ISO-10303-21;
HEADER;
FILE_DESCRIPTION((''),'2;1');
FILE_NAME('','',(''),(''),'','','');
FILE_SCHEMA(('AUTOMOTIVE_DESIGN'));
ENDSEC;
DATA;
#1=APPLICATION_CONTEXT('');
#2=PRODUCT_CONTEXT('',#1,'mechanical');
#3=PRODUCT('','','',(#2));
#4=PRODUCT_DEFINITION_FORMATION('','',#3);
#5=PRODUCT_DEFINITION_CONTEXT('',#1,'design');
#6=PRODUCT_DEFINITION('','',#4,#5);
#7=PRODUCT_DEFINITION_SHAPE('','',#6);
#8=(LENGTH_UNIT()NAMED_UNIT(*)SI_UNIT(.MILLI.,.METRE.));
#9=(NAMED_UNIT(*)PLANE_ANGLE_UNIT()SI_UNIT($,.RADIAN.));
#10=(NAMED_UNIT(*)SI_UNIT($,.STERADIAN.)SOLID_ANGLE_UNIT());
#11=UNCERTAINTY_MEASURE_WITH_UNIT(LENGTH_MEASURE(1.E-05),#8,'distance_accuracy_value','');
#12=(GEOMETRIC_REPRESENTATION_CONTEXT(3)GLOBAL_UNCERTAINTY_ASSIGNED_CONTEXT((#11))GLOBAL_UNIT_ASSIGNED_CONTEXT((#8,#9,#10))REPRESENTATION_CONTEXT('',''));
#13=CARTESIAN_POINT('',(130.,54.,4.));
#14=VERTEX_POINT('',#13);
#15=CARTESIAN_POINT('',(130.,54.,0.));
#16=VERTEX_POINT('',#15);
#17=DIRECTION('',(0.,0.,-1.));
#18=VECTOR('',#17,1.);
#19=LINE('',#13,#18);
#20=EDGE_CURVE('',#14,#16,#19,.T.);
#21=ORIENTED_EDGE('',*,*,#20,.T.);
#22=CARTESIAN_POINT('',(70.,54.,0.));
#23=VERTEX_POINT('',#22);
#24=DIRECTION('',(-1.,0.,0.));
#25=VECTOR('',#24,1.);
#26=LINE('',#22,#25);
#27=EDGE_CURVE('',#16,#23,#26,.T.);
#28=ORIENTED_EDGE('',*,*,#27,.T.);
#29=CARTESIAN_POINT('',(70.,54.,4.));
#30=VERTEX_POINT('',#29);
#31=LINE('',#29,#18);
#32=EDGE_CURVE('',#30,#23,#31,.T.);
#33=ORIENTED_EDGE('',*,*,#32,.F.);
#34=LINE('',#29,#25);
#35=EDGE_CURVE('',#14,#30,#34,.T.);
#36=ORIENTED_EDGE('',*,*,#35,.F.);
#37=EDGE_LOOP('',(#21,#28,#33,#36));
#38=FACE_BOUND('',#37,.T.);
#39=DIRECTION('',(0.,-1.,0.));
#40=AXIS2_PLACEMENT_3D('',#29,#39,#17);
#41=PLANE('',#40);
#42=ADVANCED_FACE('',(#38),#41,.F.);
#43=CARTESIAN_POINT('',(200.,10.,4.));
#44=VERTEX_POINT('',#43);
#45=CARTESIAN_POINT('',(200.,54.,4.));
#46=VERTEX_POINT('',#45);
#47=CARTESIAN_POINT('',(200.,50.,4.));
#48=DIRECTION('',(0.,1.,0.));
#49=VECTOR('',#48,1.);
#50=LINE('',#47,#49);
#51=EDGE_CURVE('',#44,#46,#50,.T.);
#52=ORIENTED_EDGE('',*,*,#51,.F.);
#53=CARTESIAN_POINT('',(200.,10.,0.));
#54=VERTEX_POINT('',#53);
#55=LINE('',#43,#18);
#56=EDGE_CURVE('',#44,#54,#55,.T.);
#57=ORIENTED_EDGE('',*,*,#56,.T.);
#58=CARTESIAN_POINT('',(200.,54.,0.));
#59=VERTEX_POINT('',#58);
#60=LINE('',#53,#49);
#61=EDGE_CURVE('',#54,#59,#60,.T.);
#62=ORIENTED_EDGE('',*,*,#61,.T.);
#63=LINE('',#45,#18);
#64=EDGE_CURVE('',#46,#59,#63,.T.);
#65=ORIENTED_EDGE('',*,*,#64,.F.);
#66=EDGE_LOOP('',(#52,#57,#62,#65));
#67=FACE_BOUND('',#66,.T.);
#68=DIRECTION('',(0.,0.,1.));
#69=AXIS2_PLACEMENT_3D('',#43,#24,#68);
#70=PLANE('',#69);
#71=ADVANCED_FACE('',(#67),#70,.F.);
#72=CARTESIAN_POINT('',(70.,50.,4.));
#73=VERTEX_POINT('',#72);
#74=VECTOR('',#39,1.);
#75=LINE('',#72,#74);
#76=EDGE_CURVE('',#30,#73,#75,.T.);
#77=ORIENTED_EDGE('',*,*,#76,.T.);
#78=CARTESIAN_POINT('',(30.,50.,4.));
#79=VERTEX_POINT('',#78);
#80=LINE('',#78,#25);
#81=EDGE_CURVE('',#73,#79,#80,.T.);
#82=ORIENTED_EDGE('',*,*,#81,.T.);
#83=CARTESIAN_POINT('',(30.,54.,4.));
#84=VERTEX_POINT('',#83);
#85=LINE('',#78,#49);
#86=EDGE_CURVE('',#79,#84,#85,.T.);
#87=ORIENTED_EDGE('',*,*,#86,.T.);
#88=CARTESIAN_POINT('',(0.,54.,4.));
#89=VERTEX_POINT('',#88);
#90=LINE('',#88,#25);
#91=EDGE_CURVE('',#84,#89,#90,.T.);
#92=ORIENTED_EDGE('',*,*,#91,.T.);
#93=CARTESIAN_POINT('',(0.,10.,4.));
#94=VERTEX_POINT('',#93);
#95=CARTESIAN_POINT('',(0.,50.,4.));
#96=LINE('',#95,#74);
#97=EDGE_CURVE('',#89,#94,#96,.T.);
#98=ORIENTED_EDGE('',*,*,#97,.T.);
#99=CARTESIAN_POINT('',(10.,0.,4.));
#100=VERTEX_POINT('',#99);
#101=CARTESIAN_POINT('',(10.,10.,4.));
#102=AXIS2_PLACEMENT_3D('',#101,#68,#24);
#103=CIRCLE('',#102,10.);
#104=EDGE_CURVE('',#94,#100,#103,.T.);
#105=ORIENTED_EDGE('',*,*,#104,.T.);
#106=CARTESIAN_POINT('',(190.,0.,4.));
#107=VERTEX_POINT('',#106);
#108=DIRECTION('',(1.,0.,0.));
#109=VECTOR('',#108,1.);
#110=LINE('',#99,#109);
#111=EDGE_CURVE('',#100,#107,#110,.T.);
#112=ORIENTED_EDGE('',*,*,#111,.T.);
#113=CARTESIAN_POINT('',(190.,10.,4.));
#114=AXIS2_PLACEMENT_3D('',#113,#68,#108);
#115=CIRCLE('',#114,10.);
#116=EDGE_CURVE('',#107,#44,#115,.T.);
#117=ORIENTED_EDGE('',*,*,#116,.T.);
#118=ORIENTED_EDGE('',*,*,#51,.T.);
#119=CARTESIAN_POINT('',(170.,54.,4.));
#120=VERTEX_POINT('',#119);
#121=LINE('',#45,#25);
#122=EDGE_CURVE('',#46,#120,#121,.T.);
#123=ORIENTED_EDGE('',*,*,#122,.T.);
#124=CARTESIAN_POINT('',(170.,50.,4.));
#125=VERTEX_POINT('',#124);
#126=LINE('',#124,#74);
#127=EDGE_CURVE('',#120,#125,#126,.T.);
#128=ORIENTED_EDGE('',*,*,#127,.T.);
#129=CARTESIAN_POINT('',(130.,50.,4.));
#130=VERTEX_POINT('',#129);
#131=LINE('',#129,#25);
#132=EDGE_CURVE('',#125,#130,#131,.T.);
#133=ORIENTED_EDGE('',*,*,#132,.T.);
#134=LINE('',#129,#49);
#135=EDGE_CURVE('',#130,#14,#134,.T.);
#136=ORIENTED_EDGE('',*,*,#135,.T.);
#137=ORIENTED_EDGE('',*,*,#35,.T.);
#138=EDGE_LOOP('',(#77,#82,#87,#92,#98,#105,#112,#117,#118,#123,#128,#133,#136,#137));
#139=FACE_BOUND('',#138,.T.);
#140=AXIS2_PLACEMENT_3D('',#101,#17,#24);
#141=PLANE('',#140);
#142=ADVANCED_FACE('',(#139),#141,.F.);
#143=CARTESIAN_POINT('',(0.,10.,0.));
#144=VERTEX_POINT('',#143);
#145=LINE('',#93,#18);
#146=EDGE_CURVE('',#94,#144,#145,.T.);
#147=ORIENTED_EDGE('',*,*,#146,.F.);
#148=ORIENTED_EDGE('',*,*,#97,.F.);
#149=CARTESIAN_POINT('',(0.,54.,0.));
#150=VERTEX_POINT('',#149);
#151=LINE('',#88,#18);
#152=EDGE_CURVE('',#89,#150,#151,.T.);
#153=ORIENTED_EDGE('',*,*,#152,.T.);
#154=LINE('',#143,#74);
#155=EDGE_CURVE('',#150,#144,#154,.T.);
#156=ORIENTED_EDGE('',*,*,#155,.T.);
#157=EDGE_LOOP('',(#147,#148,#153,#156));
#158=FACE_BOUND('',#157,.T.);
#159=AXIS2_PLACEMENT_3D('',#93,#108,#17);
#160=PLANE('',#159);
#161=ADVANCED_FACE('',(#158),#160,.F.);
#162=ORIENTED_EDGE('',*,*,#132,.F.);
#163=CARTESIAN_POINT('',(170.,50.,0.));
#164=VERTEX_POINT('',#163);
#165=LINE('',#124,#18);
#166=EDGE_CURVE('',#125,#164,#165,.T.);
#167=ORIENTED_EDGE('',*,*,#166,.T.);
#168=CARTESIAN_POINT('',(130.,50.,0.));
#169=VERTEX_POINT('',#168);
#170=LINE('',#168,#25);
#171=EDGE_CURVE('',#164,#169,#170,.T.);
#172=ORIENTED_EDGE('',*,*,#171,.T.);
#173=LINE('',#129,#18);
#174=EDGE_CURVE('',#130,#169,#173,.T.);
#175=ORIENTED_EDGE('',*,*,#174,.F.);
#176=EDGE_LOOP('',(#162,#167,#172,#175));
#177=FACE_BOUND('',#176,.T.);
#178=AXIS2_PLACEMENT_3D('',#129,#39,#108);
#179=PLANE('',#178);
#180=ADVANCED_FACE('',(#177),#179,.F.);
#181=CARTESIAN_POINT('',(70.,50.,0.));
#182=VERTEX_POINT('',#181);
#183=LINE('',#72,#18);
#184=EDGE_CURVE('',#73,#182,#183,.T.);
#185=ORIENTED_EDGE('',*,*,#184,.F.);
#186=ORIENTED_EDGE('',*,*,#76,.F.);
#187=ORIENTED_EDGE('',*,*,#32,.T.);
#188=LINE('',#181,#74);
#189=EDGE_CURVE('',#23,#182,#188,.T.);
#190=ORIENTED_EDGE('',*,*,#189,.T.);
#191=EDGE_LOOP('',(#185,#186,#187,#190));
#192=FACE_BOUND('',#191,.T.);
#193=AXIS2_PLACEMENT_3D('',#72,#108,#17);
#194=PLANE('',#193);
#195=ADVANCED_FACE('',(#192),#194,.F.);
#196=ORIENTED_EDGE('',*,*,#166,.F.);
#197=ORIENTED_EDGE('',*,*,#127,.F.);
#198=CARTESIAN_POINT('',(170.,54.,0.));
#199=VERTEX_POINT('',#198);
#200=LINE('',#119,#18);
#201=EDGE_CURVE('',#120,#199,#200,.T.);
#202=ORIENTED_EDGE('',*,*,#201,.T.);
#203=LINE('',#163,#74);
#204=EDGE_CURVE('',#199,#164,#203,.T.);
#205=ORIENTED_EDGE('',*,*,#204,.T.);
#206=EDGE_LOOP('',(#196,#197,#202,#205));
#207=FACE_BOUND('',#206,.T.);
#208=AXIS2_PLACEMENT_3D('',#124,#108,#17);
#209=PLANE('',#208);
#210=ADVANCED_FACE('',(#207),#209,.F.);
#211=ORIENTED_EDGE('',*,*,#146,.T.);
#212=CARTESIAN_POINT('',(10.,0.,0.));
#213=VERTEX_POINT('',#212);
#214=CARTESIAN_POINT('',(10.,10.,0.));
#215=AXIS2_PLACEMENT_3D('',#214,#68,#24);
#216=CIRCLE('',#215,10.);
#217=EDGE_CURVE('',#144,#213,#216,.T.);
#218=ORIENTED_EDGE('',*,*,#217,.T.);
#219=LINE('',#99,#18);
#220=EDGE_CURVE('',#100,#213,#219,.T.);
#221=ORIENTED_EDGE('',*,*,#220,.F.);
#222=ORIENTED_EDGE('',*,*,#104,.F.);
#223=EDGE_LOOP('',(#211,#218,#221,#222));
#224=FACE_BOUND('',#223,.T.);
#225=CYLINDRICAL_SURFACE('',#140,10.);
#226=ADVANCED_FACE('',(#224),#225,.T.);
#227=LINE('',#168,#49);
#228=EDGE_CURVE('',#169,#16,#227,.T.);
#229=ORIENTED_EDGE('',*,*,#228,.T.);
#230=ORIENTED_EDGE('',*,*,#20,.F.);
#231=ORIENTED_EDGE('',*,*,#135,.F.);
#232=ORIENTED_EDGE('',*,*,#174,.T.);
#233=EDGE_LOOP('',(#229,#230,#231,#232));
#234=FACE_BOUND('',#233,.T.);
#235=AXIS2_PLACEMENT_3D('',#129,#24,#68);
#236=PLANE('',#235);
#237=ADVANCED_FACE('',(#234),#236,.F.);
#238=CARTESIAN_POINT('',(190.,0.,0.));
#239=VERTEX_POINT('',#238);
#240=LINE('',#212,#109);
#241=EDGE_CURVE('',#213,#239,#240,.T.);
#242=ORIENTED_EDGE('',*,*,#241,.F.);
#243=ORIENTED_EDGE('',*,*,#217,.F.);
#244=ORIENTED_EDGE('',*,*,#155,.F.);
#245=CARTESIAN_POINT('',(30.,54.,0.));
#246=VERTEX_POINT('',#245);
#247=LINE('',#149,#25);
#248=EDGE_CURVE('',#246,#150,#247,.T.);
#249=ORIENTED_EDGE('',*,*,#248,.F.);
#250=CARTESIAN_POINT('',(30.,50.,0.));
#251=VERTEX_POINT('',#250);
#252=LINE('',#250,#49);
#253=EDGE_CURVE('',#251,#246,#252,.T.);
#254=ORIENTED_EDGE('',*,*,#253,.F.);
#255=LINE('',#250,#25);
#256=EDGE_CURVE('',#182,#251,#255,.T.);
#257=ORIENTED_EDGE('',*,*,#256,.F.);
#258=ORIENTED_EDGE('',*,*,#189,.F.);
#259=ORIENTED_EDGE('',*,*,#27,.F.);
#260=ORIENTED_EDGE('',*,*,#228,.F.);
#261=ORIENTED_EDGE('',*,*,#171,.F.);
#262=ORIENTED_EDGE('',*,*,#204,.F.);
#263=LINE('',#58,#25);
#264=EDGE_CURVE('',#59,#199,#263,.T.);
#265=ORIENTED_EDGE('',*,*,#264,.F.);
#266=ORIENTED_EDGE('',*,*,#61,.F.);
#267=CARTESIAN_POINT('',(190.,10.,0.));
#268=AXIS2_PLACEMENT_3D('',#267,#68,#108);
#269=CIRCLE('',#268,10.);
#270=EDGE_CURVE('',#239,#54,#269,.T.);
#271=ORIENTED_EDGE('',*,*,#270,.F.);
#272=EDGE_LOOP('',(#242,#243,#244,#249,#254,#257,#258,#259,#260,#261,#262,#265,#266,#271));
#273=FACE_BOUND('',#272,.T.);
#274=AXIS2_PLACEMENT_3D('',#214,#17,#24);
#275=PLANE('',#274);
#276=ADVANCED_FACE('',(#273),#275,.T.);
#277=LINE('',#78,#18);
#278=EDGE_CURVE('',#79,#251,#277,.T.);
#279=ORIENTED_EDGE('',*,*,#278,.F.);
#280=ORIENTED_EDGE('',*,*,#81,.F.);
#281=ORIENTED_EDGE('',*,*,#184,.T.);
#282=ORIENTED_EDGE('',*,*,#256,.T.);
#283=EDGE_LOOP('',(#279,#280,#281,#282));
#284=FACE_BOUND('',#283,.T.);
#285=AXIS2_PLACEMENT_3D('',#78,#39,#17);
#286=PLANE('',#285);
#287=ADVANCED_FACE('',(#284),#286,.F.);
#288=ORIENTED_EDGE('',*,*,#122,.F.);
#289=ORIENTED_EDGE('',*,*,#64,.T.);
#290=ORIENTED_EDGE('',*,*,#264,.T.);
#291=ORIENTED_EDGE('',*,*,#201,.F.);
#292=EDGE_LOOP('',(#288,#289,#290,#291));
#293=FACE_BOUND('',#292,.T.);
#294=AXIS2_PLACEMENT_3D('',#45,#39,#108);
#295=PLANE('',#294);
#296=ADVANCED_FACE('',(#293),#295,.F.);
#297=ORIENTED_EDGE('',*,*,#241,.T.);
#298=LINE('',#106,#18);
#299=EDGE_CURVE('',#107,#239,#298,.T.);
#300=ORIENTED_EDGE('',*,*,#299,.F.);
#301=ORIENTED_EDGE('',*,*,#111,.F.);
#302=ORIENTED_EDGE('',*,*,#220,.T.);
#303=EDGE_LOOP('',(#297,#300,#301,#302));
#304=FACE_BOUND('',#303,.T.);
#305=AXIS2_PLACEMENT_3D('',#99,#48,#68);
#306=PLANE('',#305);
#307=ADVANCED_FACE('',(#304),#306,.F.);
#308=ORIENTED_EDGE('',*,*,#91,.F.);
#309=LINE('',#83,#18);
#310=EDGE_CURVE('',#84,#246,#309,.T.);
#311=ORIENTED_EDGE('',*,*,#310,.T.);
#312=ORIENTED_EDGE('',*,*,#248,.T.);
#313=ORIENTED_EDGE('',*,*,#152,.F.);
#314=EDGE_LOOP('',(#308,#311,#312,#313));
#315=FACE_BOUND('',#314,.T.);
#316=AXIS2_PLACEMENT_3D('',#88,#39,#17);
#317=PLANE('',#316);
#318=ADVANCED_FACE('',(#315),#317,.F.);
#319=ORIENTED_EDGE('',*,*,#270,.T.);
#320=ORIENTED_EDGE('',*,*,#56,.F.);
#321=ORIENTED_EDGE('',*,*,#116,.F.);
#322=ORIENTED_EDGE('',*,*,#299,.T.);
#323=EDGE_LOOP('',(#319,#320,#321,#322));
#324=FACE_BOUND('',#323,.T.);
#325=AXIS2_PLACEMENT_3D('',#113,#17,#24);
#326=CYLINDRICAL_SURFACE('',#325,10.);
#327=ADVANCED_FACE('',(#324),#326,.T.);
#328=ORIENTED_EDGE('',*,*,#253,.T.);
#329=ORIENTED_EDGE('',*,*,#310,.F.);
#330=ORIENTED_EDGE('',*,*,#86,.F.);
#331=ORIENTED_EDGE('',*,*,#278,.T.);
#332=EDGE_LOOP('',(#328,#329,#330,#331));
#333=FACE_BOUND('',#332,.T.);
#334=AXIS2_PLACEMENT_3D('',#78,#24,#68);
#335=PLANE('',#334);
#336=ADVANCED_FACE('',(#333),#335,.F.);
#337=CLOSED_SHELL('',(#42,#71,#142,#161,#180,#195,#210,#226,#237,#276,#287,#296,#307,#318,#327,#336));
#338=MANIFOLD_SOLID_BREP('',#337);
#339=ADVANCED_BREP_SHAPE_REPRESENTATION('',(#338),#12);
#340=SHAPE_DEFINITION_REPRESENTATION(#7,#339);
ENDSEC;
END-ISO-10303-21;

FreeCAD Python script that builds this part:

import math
import FreeCAD as App
import Part
import Sketcher
Q = App.Units.Quantity

doc = App.newDocument("Part")
body = doc.addObject("PartDesign::Body", "Body")

# Sketch on XY plane
sketch1 = body.newObject("Sketcher::SketchObject", "Sketch")
sketch1.AttachmentSupport = (doc.getObject("XY_Plane"), [""])
sketch1.MapMode = "FlatFace"
sketch1.addGeometry([
    Part.LineSegment(App.Vector(10, 0, 0), App.Vector(190, 0, 0)),  # 0
    Part.ArcOfCircle(Part.Circle(App.Vector(190, 10, 0), App.Vector(0, 0, 1), 10), math.radians(-90), math.radians(0)),  # 1
    Part.LineSegment(App.Vector(200, 10, 0), App.Vector(200, 54, 0)),  # 2
    Part.LineSegment(App.Vector(200, 54, 0), App.Vector(170, 54, 0)),  # 3
    Part.LineSegment(App.Vector(170, 54, 0), App.Vector(170, 50, 0)),  # 4
    Part.LineSegment(App.Vector(170, 50, 0), App.Vector(130, 50, 0)),  # 5
    Part.LineSegment(App.Vector(130, 50, 0), App.Vector(130, 54, 0)),  # 6
    Part.LineSegment(App.Vector(130, 54, 0), App.Vector(70, 54, 0)),  # 7
    Part.LineSegment(App.Vector(70, 54, 0), App.Vector(70, 50, 0)),  # 8
    Part.LineSegment(App.Vector(70, 50, 0), App.Vector(30, 50, 0)),  # 9
    Part.LineSegment(App.Vector(30, 50, 0), App.Vector(30, 54, 0)),  # 10
    Part.LineSegment(App.Vector(30, 54, 0), App.Vector(0, 54, 0)),  # 11
    Part.LineSegment(App.Vector(0, 54, 0), App.Vector(0, 10, 0)),  # 12
    Part.ArcOfCircle(Part.Circle(App.Vector(10, 10, 0), App.Vector(0, 0, 1), 10), math.radians(180), math.radians(270)),  # 13
], False)
sketch1.addConstraint([
    Sketcher.Constraint("Tangent", 0, 2, 1, 1),
    Sketcher.Constraint("Tangent", 1, 2, 2, 1),
    Sketcher.Constraint("Coincident", 2, 2, 3, 1),
    Sketcher.Constraint("Coincident", 3, 2, 4, 1),
    Sketcher.Constraint("Coincident", 4, 2, 5, 1),
    Sketcher.Constraint("Coincident", 5, 2, 6, 1),
    Sketcher.Constraint("Coincident", 6, 2, 7, 1),
    Sketcher.Constraint("Coincident", 7, 2, 8, 1),
    Sketcher.Constraint("Coincident", 8, 2, 9, 1),
    Sketcher.Constraint("Coincident", 9, 2, 10, 1),
    Sketcher.Constraint("Coincident", 10, 2, 11, 1),
    Sketcher.Constraint("Coincident", 11, 2, 12, 1),
    Sketcher.Constraint("Tangent", 12, 2, 13, 1),
    Sketcher.Constraint("Tangent", 13, 2, 0, 1),
    Sketcher.Constraint("Horizontal", 0),
    Sketcher.Constraint("Vertical", 2),
    Sketcher.Constraint("Horizontal", 3),
    Sketcher.Constraint("Vertical", 4),
    Sketcher.Constraint("Horizontal", 5),
    Sketcher.Constraint("Vertical", 6),
    Sketcher.Constraint("Horizontal", 7),
    Sketcher.Constraint("Vertical", 8),
    Sketcher.Constraint("Horizontal", 9),
    Sketcher.Constraint("Vertical", 10),
    Sketcher.Constraint("Horizontal", 11),
    Sketcher.Constraint("Vertical", 12),
    Sketcher.Constraint("Equal", 1, 13),
    Sketcher.Constraint("PointOnObject", 0, 2, -1),
    Sketcher.Constraint("PointOnObject", 11, 2, -2),
    Sketcher.Constraint("Horizontal", 3, 2, 6, 2),
    Sketcher.Constraint("Horizontal", 5, 2, 8, 2),
    Sketcher.Constraint("Horizontal", 7, 2, 10, 2),
    Sketcher.Constraint("Equal", 5, 9),
    Sketcher.Constraint("Equal", 3, 11),
    Sketcher.Constraint("Radius", 1, Q("10 mm")),
    Sketcher.Constraint("DistanceX", 0, 1, 0, 2, Q("180 mm")),
    Sketcher.Constraint("DistanceX", 3, 2, 3, 1, Q("30 mm")),
    Sketcher.Constraint("DistanceX", 5, 2, 5, 1, Q("40 mm")),
    Sketcher.Constraint("DistanceY", 2, 1, 2, 2, Q("44 mm")),
    Sketcher.Constraint("DistanceY", 4, 2, 4, 1, Q("4 mm")),
])
pad1 = body.newObject("PartDesign::Pad", "Pad")
pad1.Profile = sketch1
pad1.Length = 4

doc.recompute()
